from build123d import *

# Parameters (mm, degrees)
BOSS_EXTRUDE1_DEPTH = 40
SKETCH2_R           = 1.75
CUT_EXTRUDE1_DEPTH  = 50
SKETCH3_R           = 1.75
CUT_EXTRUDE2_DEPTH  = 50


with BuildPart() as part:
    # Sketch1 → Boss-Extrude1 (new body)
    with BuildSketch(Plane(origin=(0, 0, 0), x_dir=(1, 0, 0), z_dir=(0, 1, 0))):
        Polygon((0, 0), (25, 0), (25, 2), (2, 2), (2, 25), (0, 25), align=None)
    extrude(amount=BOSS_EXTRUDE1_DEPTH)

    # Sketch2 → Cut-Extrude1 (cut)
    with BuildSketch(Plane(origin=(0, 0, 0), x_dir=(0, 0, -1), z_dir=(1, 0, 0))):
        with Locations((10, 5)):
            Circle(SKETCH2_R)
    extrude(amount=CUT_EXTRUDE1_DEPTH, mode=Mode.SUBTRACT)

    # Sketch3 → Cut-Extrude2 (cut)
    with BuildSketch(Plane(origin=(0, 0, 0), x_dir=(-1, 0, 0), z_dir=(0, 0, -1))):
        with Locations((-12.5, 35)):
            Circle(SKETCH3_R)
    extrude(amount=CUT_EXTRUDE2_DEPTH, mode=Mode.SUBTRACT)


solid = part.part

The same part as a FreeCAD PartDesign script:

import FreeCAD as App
import Part
import Sketcher

V = App.Vector
Q = App.Units.Quantity


def add_polygon(sketch, points):
    """Adds a closed chain of lines whose ends are joined by coincident constraints."""
    first, n = sketch.GeometryCount, len(points)
    for a, b in zip(points, points[1:] + points[:1]):
        sketch.addGeometry(Part.LineSegment(App.Vector(*a, 0), App.Vector(*b, 0)), False)
    for i in range(n):
        sketch.addConstraint(Sketcher.Constraint("Coincident", first + i, 2, first + (i + 1) % n, 1))

doc = App.newDocument("Part")
body = doc.addObject("PartDesign::Body", "Body")

sketch1 = body.newObject("Sketcher::SketchObject", "Sketch")
sketch1.AttachmentSupport = (doc.getObject("XZ_Plane"), [""])
sketch1.MapMode = "FlatFace"
add_polygon(sketch1, [(0, 0), (25, 0), (25, -2), (2, -2), (2, -25), (0, -25)])
sketch1.addConstraint([
    Sketcher.Constraint("Horizontal", 0),
    Sketcher.Constraint("Vertical", 1),
    Sketcher.Constraint("Horizontal", 2),
    Sketcher.Constraint("Vertical", 3),
    Sketcher.Constraint("Horizontal", 4),
    Sketcher.Constraint("Vertical", 5),
    Sketcher.Constraint("Coincident", 5, 2, -1, 1),
    Sketcher.Constraint("Equal", 4, 1),
    Sketcher.Constraint("Equal", 2, 3),
    Sketcher.Constraint("DistanceX", 0, 1, 0, 2, Q("25 mm")),
    Sketcher.Constraint("DistanceX", 2, 2, 2, 1, Q("23 mm")),
])
pad1 = body.newObject("PartDesign::Pad", "Pad")
pad1.Profile = sketch1
pad1.Length = 40
pad1.Reversed = True

sketch2 = body.newObject("Sketcher::SketchObject", "Sketch001")
sketch2.AttachmentSupport = (doc.getObject("YZ_Plane"), [""])
sketch2.MapMode = "FlatFace"
sketch2.addGeometry(Part.Circle(V(5, -10, 0), V(0, 0, 1), 1.8), False)
sketch2.addConstraint([
    Sketcher.Constraint("Diameter", 0, Q("3.5 mm")),
    Sketcher.Constraint("DistanceX", -1, 1, 0, 3, Q("5 mm")),
    Sketcher.Constraint("DistanceY", 0, 3, -1, 1, Q("10 mm")),
])
pocket1 = body.newObject("PartDesign::Pocket", "Pocket")
pocket1.Profile = sketch2
pocket1.Length = 50
pocket1.Reversed = True

sketch3 = body.newObject("Sketcher::SketchObject", "Sketch002")
sketch3.AttachmentSupport = (doc.getObject("XY_Plane"), [""])
sketch3.MapMode = "FlatFace"
sketch3.addGeometry(Part.Circle(V(12.5, 35, 0), V(0, 0, 1), 1.8), False)
sketch3.addConstraint([
    Sketcher.Constraint("Diameter", 0, Q("3.5 mm")),
    Sketcher.Constraint("DistanceY", -1, 1, 0, 3, Q("35 mm")),
    Sketcher.Constraint("DistanceX", -1, 1, 0, 3, Q("12.5 mm")),
])
pocket2 = body.newObject("PartDesign::Pocket", "Pocket001")
pocket2.Profile = sketch3
pocket2.Length = 50

doc.recompute()
